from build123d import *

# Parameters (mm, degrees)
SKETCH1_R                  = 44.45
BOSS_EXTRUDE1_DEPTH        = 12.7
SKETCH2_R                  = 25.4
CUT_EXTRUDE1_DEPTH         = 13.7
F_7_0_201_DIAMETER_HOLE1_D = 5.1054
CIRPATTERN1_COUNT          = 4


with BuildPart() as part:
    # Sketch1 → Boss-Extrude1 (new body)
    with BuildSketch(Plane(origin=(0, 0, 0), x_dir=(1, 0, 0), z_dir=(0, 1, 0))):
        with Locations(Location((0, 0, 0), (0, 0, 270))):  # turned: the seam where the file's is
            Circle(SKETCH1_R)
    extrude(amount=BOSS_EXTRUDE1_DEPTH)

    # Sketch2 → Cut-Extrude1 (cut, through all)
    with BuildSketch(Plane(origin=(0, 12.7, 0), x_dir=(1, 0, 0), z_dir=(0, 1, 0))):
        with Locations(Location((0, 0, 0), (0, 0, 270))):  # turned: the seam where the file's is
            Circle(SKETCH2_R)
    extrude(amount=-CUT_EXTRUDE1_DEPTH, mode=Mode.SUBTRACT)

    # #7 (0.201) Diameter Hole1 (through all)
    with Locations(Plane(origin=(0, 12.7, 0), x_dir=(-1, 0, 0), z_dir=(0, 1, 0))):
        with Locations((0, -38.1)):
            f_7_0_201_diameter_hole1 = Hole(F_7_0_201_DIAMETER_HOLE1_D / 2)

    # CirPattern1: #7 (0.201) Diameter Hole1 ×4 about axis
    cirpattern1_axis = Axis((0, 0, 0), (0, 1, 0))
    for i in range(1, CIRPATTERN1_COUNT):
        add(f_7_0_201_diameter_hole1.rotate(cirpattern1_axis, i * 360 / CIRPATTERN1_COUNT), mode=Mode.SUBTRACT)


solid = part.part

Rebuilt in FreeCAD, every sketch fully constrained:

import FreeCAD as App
import Part
import Sketcher
from FreeCAD import Vector
Q = App.Units.Quantity

doc = App.newDocument("Part")
params = doc.addObject("Spreadsheet::Sheet", "Params")
for row, (alias, value) in enumerate([
    ("sketch1_diameter", "3.5 in"),
    ("pad1_length", "0.5 in"),
    ("sketch2_diameter", "2 in"),
    ("sketch3_diameter", "0.201 in"),
    ("hole_diameter", "0.201 in"),
], start=1):
    params.set(f"A{row}", alias)
    params.set(f"B{row}", "=" + value)
    params.setAlias(f"B{row}", alias)

body = doc.addObject("PartDesign::Body", "Body")

# Sketch on XZ plane
sketch1 = body.newObject("Sketcher::SketchObject", "Sketch")
sketch1.AttachmentSupport = (doc.getObject("XZ_Plane"), [""])
sketch1.MapMode = "FlatFace"
sketch1.addGeometry(Part.Circle(Vector(0, 0, 0), Vector(0, 0, 1), 44), False)
sketch1.addConstraint([
    Sketcher.Constraint("Coincident", 0, 3, -1, 1),
    Sketcher.Constraint("Diameter", 0, Q("3.5 in")),
])
sketch1.setExpression("Constraints[1]", "Params.sketch1_diameter")
pad1 = body.newObject("PartDesign::Pad", "Pad")
pad1.Profile = sketch1
pad1.setExpression("Length", "Params.pad1_length")
pad1.Reversed = True

# Sketch on XZ plane
sketch2 = body.newObject("Sketcher::SketchObject", "Sketch001")
sketch2.AttachmentSupport = (doc.getObject("XZ_Plane"), [""])
sketch2.MapMode = "FlatFace"
sketch2.AttachmentOffset = App.Placement(Vector(0, 0, -0.5 * 25.4), App.Rotation())
sketch2.addGeometry(Part.Circle(Vector(0, 0, 0), Vector(0, 0, 1), 25), False)
sketch2.addConstraint([
    Sketcher.Constraint("Coincident", 0, 3, -1, 1),
    Sketcher.Constraint("Diameter", 0, Q("2 in")),
])
sketch2.setExpression("Constraints[1]", "Params.sketch2_diameter")
pocket1 = body.newObject("PartDesign::Pocket", "Pocket")
pocket1.Profile = sketch2
pocket1.Type = "ThroughAll"
pocket1.Reversed = True

# Sketch on XZ plane
sketch3 = body.newObject("Sketcher::SketchObject", "Sketch002")
sketch3.AttachmentSupport = (doc.getObject("XZ_Plane"), [""])
sketch3.MapMode = "FlatFace"
sketch3.AttachmentOffset = App.Placement(Vector(0, 0, -0.5 * 25.4), App.Rotation())
sketch3.addGeometry(Part.Circle(Vector(0, -38.1, 0), Vector(0, 0, 1), 2.6), False)
sketch3.addConstraint([
    Sketcher.Constraint("PointOnObject", 0, 3, -2),
    Sketcher.Constraint("Diameter", 0, Q("0.201 in")),
    Sketcher.Constraint("DistanceY", 0, 3, -1, 1, Q("1.5 in")),
])
sketch3.setExpression("Constraints[1]", "Params.sketch3_diameter")
doc.recompute()
hole = body.newObject("PartDesign::Hole", "Hole")
hole.Profile = sketch3
hole.ThreadType = "None"
hole.setExpression("Diameter", "Params.hole_diameter")
hole.DepthType = "ThroughAll"
hole.Reversed = True
doc.recompute()

polarpattern = body.newObject("PartDesign::PolarPattern", "PolarPattern")
polarpattern.Originals = [hole]
polarpattern.Axis = (doc.getObject("Y_Axis"), [""])
polarpattern.Angle = 360
polarpattern.Occurrences = 4
body.Tip = polarpattern

doc.recompute()
